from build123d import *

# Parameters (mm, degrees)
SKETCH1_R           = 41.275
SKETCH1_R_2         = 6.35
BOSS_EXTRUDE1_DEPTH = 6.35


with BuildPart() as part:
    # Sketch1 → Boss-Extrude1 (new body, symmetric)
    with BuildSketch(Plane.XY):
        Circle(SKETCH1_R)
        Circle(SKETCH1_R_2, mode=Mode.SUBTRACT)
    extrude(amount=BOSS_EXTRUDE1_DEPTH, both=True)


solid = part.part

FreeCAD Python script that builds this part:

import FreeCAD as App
import Part
import Sketcher
Q = App.Units.Quantity

doc = App.newDocument("Part")
params = doc.addObject("Spreadsheet::Sheet", "Params")
for row, (alias, value) in enumerate([
    ("sketch1_diameter", "0.5 in"),
    ("sketch1_diameter2", "3.25 in"),
    ("pad1_length", "0.5 in"),
], start=1):
    params.set(f"A{row}", alias)
    params.set(f"B{row}", "=" + value)
    params.setAlias(f"B{row}", alias)

body = doc.addObject("PartDesign::Body", "Body")

# Sketch on XY plane
sketch1 = body.newObject("Sketcher::SketchObject", "Sketch")
sketch1.AttachmentSupport = (doc.getObject("XY_Plane"), [""])
sketch1.MapMode = "FlatFace"
sketch1.addGeometry([
    Part.Circle(App.Vector(0, 0, 0), App.Vector(0, 0, 1), 41),
    Part.Circle(App.Vector(0, 0, 0), App.Vector(0, 0, 1), 6),
], False)
sketch1.addConstraint([
    Sketcher.Constraint("Coincident", 0, 3, -1, 1),
    Sketcher.Constraint("Coincident", 1, 3, -1, 1),
    Sketcher.Constraint("Diameter", 1, Q("0.5 in")),
    Sketcher.Constraint("Diameter", 0, Q("3.25 in")),
])
sketch1.setExpression("Constraints[2]", "Params.sketch1_diameter")
sketch1.setExpression("Constraints[3]", "Params.sketch1_diameter2")
pad1 = body.newObject("PartDesign::Pad", "Pad")
pad1.Profile = sketch1
pad1.setExpression("Length", "Params.pad1_length")
pad1.Midplane = True

doc.recompute()
